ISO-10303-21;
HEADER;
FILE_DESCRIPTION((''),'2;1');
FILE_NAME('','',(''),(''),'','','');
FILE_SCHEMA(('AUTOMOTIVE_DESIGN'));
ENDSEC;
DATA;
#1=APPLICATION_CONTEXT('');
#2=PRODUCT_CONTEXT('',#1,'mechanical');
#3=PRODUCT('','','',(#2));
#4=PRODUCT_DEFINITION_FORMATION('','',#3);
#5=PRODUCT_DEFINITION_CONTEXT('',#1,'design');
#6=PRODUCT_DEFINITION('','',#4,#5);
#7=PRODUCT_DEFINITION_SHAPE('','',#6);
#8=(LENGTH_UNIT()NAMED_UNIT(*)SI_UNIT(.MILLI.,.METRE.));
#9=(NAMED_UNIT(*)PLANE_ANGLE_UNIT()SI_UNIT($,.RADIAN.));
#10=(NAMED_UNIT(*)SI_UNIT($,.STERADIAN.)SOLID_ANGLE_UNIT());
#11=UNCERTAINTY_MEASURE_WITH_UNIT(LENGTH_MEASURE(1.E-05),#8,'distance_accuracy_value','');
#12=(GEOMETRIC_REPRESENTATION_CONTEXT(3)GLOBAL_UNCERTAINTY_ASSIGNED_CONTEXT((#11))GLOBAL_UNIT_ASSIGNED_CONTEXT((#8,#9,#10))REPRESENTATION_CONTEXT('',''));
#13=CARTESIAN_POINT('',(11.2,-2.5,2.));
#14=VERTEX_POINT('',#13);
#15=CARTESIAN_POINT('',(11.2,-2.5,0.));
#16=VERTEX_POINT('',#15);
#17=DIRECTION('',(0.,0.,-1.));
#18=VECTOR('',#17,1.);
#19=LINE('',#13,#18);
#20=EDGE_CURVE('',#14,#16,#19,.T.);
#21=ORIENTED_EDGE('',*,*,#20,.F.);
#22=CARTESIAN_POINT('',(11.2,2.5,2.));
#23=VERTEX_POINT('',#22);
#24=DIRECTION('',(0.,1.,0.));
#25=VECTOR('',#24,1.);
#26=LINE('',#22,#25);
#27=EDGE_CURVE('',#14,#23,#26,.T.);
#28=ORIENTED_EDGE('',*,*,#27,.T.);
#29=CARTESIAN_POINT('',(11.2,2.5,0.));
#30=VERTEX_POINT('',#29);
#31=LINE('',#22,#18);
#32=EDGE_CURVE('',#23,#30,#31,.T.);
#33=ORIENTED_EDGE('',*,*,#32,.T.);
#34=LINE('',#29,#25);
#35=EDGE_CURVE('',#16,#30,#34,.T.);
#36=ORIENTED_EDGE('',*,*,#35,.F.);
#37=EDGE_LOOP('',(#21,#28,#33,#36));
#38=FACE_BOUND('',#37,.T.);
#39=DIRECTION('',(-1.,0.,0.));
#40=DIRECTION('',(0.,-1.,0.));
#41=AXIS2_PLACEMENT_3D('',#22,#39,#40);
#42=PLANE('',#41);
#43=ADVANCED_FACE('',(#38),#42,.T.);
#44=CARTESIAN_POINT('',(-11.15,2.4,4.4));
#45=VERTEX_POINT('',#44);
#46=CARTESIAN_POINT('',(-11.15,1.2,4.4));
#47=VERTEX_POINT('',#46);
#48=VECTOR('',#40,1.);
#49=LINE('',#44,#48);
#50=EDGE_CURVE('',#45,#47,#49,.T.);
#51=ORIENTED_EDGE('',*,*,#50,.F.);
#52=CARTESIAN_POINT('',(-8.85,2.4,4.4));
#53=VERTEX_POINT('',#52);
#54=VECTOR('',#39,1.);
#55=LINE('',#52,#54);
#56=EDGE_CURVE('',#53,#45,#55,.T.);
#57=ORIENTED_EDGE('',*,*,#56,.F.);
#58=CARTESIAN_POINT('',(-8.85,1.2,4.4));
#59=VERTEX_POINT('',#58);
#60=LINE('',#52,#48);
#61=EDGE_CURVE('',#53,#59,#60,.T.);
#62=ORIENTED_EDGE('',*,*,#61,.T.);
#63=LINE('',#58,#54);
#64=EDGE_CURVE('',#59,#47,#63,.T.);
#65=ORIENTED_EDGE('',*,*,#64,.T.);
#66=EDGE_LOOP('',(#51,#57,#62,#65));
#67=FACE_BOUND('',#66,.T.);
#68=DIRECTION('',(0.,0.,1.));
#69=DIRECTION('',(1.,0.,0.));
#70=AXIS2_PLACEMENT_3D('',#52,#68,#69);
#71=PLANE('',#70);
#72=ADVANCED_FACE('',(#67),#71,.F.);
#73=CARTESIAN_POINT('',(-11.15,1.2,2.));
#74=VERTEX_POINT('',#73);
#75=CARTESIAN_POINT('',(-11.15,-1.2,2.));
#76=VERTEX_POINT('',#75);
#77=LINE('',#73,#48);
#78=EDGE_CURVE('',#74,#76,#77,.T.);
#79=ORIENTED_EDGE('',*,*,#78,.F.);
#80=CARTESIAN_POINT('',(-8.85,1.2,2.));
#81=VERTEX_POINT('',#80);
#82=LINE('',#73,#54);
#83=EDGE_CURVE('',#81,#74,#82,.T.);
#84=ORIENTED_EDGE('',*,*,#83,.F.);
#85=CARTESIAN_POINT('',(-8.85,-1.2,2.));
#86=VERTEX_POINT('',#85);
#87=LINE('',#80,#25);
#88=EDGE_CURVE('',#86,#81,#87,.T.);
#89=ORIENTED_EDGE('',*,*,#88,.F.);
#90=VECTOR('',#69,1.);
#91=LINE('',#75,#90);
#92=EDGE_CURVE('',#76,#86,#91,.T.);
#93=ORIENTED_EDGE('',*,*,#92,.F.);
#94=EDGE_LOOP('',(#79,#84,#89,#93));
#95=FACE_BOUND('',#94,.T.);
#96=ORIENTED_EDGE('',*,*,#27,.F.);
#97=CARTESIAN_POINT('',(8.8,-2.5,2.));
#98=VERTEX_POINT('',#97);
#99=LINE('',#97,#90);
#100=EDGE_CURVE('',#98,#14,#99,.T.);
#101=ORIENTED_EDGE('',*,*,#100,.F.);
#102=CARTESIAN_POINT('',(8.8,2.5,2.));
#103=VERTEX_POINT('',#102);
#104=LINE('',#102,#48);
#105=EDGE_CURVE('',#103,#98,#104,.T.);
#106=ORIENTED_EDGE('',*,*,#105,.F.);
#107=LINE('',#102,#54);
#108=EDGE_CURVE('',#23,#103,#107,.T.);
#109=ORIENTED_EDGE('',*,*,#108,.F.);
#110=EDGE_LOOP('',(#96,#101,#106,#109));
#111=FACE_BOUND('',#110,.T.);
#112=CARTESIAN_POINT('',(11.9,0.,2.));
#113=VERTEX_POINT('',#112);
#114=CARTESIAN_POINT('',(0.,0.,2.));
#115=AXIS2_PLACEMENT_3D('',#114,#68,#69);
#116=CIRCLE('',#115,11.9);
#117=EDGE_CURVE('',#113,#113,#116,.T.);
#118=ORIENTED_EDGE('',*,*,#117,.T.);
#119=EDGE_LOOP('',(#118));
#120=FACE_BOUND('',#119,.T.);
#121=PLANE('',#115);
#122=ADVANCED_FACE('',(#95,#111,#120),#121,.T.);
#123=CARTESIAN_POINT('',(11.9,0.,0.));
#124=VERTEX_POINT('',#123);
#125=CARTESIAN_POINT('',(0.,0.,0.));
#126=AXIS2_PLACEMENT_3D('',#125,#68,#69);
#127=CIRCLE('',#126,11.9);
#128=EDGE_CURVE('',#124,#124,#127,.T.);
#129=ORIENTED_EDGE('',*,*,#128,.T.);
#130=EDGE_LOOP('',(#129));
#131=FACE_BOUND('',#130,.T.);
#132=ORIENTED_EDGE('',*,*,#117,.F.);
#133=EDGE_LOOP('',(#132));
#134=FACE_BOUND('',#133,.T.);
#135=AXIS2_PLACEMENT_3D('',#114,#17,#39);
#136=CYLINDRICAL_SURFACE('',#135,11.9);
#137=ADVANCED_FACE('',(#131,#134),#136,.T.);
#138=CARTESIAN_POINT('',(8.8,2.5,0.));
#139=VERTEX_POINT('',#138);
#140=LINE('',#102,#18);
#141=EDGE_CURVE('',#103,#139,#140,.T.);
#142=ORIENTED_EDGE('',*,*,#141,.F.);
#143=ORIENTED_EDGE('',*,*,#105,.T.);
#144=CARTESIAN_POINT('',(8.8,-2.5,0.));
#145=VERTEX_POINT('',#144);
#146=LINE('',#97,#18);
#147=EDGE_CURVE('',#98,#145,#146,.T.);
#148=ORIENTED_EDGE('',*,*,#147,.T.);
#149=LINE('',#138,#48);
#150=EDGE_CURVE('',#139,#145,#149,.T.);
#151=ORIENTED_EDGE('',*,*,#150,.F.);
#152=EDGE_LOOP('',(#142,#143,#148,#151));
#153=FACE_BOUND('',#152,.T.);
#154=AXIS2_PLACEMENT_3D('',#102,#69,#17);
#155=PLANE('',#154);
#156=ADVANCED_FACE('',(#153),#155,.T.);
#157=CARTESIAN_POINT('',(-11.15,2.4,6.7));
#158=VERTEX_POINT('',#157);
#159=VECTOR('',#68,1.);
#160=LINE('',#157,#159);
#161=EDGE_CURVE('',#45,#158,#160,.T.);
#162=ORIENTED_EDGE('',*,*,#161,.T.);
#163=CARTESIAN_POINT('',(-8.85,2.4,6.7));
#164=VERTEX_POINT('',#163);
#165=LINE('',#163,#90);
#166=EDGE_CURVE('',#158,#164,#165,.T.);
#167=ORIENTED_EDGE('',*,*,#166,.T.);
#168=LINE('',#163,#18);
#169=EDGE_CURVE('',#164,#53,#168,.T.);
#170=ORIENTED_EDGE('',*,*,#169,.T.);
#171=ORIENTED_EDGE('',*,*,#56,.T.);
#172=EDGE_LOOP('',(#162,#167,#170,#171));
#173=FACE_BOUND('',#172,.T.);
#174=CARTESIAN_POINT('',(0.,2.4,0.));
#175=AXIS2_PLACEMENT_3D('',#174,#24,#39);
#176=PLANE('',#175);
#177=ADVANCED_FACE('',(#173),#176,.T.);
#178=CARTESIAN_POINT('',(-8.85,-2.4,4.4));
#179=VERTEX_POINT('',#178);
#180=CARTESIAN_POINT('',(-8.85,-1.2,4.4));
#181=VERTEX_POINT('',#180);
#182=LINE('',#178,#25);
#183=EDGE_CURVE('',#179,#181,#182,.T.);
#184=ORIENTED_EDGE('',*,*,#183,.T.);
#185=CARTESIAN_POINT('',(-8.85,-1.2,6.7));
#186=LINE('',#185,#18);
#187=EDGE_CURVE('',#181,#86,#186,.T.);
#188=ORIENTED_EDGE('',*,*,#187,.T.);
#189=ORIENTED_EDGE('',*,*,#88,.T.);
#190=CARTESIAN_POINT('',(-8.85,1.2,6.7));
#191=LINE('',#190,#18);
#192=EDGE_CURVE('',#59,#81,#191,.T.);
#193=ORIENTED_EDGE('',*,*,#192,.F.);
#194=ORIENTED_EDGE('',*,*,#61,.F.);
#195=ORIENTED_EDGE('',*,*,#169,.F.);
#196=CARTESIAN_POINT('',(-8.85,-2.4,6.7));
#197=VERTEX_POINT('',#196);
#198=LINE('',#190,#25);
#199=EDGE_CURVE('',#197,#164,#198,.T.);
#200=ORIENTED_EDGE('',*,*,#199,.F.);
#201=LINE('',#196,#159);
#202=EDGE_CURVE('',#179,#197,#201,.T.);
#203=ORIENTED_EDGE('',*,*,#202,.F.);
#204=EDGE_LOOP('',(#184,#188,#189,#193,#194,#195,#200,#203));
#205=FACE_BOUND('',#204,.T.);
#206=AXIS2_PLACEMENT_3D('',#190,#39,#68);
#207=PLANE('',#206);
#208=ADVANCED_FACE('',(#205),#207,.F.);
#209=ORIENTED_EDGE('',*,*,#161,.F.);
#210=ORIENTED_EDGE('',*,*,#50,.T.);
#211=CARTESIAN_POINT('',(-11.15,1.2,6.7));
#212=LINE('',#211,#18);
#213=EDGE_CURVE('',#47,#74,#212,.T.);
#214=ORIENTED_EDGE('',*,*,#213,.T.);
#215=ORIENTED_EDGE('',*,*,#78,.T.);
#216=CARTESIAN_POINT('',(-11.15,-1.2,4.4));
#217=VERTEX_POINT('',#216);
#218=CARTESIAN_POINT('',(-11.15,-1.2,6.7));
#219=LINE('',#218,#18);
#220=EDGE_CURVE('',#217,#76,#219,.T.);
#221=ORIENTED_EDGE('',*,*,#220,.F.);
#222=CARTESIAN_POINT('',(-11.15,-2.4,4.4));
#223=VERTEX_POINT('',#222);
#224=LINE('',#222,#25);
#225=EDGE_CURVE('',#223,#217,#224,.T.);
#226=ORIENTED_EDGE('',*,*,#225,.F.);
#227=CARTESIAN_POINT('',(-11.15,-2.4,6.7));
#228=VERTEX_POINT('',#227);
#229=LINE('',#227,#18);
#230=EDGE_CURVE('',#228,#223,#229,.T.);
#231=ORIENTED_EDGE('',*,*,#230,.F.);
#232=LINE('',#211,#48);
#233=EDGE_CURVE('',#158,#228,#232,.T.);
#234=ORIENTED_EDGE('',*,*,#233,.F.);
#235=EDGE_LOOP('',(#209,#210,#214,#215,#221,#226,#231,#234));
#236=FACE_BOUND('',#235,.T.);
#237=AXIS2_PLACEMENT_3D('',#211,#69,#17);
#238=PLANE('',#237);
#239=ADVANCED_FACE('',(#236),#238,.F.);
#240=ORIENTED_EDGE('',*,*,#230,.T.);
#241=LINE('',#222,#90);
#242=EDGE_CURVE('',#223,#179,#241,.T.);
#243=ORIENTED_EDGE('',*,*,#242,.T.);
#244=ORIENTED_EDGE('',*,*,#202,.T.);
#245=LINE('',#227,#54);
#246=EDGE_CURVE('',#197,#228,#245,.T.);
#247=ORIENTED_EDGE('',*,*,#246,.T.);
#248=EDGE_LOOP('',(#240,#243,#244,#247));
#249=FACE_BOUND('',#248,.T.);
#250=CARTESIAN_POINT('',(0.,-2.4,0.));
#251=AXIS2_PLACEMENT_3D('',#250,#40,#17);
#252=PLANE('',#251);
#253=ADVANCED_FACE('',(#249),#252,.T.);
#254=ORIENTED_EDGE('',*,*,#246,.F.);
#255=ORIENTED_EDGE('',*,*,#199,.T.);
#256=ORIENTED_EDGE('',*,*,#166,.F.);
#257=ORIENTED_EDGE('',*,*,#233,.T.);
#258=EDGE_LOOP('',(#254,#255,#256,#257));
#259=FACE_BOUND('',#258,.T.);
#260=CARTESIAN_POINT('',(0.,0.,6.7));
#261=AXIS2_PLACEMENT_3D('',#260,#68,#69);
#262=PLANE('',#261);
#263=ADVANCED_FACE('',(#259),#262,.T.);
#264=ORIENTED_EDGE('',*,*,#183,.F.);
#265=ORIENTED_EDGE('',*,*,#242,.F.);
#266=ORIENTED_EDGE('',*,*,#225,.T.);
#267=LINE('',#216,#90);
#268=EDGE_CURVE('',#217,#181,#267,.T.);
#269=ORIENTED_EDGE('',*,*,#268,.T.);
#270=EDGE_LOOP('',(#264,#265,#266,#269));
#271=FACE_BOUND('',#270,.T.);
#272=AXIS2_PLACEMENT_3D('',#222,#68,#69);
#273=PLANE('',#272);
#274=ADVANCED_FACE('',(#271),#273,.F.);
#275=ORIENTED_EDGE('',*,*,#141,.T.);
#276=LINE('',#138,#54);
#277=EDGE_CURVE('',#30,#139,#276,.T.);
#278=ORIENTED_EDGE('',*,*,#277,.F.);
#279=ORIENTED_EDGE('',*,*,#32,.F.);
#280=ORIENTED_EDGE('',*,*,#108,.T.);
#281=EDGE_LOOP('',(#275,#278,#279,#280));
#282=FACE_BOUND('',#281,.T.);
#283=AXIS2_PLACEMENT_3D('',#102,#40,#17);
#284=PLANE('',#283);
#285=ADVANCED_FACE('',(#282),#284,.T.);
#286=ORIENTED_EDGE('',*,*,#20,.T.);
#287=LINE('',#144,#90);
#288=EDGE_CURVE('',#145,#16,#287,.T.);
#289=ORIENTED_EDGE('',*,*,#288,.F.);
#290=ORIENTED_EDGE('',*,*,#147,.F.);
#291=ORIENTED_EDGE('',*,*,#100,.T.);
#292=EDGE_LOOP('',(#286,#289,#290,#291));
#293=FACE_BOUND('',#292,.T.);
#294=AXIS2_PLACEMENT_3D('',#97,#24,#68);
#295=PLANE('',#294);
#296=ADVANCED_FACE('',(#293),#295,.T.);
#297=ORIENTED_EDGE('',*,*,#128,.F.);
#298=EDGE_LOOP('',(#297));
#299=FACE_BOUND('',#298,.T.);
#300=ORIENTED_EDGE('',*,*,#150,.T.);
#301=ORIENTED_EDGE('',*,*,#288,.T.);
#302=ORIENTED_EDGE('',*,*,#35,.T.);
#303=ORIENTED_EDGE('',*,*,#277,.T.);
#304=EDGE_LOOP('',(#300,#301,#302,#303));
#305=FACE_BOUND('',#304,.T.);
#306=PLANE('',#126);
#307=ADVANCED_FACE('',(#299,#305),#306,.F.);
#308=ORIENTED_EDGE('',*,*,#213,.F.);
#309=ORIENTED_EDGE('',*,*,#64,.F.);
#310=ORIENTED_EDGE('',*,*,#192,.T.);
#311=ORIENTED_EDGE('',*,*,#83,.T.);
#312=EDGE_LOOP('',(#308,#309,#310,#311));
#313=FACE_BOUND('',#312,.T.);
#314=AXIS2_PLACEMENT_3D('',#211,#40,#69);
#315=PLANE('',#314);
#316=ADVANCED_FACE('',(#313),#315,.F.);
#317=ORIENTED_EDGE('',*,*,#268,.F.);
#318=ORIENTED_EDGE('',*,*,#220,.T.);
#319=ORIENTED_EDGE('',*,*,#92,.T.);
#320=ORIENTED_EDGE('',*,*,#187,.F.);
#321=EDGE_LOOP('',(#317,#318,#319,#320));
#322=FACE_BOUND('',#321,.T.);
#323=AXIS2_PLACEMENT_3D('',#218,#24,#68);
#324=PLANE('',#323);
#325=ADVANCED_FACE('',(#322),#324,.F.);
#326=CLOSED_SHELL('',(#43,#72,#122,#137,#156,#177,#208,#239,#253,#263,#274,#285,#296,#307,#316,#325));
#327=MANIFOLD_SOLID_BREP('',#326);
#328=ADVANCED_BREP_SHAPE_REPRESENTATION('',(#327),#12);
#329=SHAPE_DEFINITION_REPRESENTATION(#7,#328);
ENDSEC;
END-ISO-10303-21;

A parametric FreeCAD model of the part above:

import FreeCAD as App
import Part
import Sketcher
from FreeCAD import Vector

doc = App.newDocument("Part")
body = doc.addObject("PartDesign::Body", "Body")

sketch1 = body.newObject("Sketcher::SketchObject", "Sketch")
sketch1.AttachmentSupport = (doc.getObject("XY_Plane"), [""])
sketch1.MapMode = "FlatFace"
sketch1.addGeometry([
    Part.Circle(Vector(0, 0, 0), Vector(0, 0, 1), 11.9),
    Part.LineSegment(Vector(11.2, -2.5, 0), Vector(8.8, -2.5, 0)),
    Part.LineSegment(Vector(8.8, -2.5, 0), Vector(8.8, 2.5, 0)),
    Part.LineSegment(Vector(8.8, 2.5, 0), Vector(11.2, 2.5, 0)),
    Part.LineSegment(Vector(11.2, 2.5, 0), Vector(11.2, -2.5, 0)),
], False)
sketch1.addConstraint([
    Sketcher.Constraint("Coincident", 1, 2, 2, 1),
    Sketcher.Constraint("Coincident", 2, 2, 3, 1),
    Sketcher.Constraint("Coincident", 3, 2, 4, 1),
    Sketcher.Constraint("Coincident", 4, 2, 1, 1),
    Sketcher.Constraint("Horizontal", 1),
    Sketcher.Constraint("Vertical", 2),
    Sketcher.Constraint("Horizontal", 3),
    Sketcher.Constraint("Vertical", 4),
    Sketcher.Constraint("Coincident", 0, 3, -1, 1),
    Sketcher.Constraint("Diameter", 0, 23.8),
    Sketcher.Constraint("DistanceY", 2, 1, 2, 2, 5.0),
    Sketcher.Constraint("DistanceX", 1, 2, 1, 1, 2.4),
    Sketcher.Constraint("DistanceX", -1, 1, 1, 2, 8.8),
    Sketcher.Constraint("DistanceY", 1, 2, -1, 1, 2.5),
])
pad1 = body.newObject("PartDesign::Pad", "Pad")
pad1.Profile = sketch1
pad1.Length = 2

sketch2 = body.newObject("Sketcher::SketchObject", "Sketch001")
sketch2.AttachmentSupport = (doc.getObject("XY_Plane"), [""])
sketch2.MapMode = "FlatFace"
sketch2.AttachmentOffset = App.Placement(Vector(0, 0, 2), App.Rotation())
sketch2.addGeometry([
    Part.LineSegment(Vector(-11.2, 1.2, 0), Vector(-11.2, -1.2, 0)),
    Part.LineSegment(Vector(-11.2, -1.2, 0), Vector(-8.8, -1.2, 0)),
    Part.LineSegment(Vector(-8.8, -1.2, 0), Vector(-8.8, 1.2, 0)),
    Part.LineSegment(Vector(-8.8, 1.2, 0), Vector(-11.2, 1.2, 0)),
], False)
sketch2.addConstraint([
    Sketcher.Constraint("Coincident", 0, 2, 1, 1),
    Sketcher.Constraint("Coincident", 1, 2, 2, 1),
    Sketcher.Constraint("Coincident", 2, 2, 3, 1),
    Sketcher.Constraint("Coincident", 3, 2, 0, 1),
    Sketcher.Constraint("Vertical", 0),
    Sketcher.Constraint("Horizontal", 1),
    Sketcher.Constraint("Vertical", 2),
    Sketcher.Constraint("Horizontal", 3),
    Sketcher.Constraint("DistanceX", 1, 1, 1, 2, 2.3),
    Sketcher.Constraint("DistanceY", 0, 2, 0, 1, 2.4),
    Sketcher.Constraint("DistanceY", 0, 2, -1, 1, 1.2),
    Sketcher.Constraint("DistanceX", 0, 2, -1, 1, 11.15),
])
pad2 = body.newObject("PartDesign::Pad", "Pad001")
pad2.Profile = sketch2
pad2.Length = 4.7

sketch3 = body.newObject("Sketcher::SketchObject", "Sketch002")
sketch3.AttachmentSupport = (doc.getObject("XZ_Plane"), [""])
sketch3.MapMode = "FlatFace"
sketch3.AttachmentOffset = App.Placement(Vector(0, 0, -1.2), App.Rotation())
sketch3.addGeometry([
    Part.LineSegment(Vector(-11.2, 4.4, 0), Vector(-11.2, 6.7, 0)),
    Part.LineSegment(Vector(-11.2, 6.7, 0), Vector(-8.8, 6.7, 0)),
    Part.LineSegment(Vector(-8.8, 6.7, 0), Vector(-8.8, 4.4, 0)),
    Part.LineSegment(Vector(-8.8, 4.4, 0), Vector(-11.2, 4.4, 0)),
], False)
sketch3.addConstraint([
    Sketcher.Constraint("Coincident", 0, 2, 1, 1),
    Sketcher.Constraint("Coincident", 1, 2, 2, 1),
    Sketcher.Constraint("Coincident", 2, 2, 3, 1),
    Sketcher.Constraint("Coincident", 3, 2, 0, 1),
    Sketcher.Constraint("Vertical", 0),
    Sketcher.Constraint("Horizontal", 1),
    Sketcher.Constraint("Vertical", 2),
    Sketcher.Constraint("Horizontal", 3),
    Sketcher.Constraint("Equal", 3, 0),
    Sketcher.Constraint("DistanceX", 1, 1, 1, 2, 2.3),
    Sketcher.Constraint("DistanceY", -1, 1, 0, 2, 6.7),
    Sketcher.Constraint("DistanceX", 0, 2, -1, 1, 11.15),
])
pad3 = body.newObject("PartDesign::Pad", "Pad002")
pad3.Profile = sketch3
pad3.Length = 1.2
pad3.Reversed = True

sketch4 = body.newObject("Sketcher::SketchObject", "Sketch003")
sketch4.AttachmentSupport = (doc.getObject("XZ_Plane"), [""])
sketch4.MapMode = "FlatFace"
sketch4.AttachmentOffset = App.Placement(Vector(0, 0, 1.2), App.Rotation())
sketch4.addGeometry([
    Part.LineSegment(Vector(-11.2, 6.7, 0), Vector(-11.2, 4.4, 0)),
    Part.LineSegment(Vector(-11.2, 4.4, 0), Vector(-8.8, 4.4, 0)),
    Part.LineSegment(Vector(-8.8, 4.4, 0), Vector(-8.8, 6.7, 0)),
    Part.LineSegment(Vector(-8.8, 6.7, 0), Vector(-11.2, 6.7, 0)),
], False)
sketch4.addConstraint([
    Sketcher.Constraint("Coincident", 0, 2, 1, 1),
    Sketcher.Constraint("Coincident", 1, 2, 2, 1),
    Sketcher.Constraint("Coincident", 2, 2, 3, 1),
    Sketcher.Constraint("Coincident", 3, 2, 0, 1),
    Sketcher.Constraint("Vertical", 0),
    Sketcher.Constraint("Horizontal", 1),
    Sketcher.Constraint("Vertical", 2),
    Sketcher.Constraint("Horizontal", 3),
    Sketcher.Constraint("Equal", 3, 0),
    Sketcher.Constraint("DistanceX", 1, 1, 1, 2, 2.3),
    Sketcher.Constraint("DistanceY", -1, 1, 0, 2, 4.4),
    Sketcher.Constraint("DistanceX", 0, 2, -1, 1, 11.15),
])
pad4 = body.newObject("PartDesign::Pad", "Pad003")
pad4.Profile = sketch4
pad4.Length = 1.2

doc.recompute()
